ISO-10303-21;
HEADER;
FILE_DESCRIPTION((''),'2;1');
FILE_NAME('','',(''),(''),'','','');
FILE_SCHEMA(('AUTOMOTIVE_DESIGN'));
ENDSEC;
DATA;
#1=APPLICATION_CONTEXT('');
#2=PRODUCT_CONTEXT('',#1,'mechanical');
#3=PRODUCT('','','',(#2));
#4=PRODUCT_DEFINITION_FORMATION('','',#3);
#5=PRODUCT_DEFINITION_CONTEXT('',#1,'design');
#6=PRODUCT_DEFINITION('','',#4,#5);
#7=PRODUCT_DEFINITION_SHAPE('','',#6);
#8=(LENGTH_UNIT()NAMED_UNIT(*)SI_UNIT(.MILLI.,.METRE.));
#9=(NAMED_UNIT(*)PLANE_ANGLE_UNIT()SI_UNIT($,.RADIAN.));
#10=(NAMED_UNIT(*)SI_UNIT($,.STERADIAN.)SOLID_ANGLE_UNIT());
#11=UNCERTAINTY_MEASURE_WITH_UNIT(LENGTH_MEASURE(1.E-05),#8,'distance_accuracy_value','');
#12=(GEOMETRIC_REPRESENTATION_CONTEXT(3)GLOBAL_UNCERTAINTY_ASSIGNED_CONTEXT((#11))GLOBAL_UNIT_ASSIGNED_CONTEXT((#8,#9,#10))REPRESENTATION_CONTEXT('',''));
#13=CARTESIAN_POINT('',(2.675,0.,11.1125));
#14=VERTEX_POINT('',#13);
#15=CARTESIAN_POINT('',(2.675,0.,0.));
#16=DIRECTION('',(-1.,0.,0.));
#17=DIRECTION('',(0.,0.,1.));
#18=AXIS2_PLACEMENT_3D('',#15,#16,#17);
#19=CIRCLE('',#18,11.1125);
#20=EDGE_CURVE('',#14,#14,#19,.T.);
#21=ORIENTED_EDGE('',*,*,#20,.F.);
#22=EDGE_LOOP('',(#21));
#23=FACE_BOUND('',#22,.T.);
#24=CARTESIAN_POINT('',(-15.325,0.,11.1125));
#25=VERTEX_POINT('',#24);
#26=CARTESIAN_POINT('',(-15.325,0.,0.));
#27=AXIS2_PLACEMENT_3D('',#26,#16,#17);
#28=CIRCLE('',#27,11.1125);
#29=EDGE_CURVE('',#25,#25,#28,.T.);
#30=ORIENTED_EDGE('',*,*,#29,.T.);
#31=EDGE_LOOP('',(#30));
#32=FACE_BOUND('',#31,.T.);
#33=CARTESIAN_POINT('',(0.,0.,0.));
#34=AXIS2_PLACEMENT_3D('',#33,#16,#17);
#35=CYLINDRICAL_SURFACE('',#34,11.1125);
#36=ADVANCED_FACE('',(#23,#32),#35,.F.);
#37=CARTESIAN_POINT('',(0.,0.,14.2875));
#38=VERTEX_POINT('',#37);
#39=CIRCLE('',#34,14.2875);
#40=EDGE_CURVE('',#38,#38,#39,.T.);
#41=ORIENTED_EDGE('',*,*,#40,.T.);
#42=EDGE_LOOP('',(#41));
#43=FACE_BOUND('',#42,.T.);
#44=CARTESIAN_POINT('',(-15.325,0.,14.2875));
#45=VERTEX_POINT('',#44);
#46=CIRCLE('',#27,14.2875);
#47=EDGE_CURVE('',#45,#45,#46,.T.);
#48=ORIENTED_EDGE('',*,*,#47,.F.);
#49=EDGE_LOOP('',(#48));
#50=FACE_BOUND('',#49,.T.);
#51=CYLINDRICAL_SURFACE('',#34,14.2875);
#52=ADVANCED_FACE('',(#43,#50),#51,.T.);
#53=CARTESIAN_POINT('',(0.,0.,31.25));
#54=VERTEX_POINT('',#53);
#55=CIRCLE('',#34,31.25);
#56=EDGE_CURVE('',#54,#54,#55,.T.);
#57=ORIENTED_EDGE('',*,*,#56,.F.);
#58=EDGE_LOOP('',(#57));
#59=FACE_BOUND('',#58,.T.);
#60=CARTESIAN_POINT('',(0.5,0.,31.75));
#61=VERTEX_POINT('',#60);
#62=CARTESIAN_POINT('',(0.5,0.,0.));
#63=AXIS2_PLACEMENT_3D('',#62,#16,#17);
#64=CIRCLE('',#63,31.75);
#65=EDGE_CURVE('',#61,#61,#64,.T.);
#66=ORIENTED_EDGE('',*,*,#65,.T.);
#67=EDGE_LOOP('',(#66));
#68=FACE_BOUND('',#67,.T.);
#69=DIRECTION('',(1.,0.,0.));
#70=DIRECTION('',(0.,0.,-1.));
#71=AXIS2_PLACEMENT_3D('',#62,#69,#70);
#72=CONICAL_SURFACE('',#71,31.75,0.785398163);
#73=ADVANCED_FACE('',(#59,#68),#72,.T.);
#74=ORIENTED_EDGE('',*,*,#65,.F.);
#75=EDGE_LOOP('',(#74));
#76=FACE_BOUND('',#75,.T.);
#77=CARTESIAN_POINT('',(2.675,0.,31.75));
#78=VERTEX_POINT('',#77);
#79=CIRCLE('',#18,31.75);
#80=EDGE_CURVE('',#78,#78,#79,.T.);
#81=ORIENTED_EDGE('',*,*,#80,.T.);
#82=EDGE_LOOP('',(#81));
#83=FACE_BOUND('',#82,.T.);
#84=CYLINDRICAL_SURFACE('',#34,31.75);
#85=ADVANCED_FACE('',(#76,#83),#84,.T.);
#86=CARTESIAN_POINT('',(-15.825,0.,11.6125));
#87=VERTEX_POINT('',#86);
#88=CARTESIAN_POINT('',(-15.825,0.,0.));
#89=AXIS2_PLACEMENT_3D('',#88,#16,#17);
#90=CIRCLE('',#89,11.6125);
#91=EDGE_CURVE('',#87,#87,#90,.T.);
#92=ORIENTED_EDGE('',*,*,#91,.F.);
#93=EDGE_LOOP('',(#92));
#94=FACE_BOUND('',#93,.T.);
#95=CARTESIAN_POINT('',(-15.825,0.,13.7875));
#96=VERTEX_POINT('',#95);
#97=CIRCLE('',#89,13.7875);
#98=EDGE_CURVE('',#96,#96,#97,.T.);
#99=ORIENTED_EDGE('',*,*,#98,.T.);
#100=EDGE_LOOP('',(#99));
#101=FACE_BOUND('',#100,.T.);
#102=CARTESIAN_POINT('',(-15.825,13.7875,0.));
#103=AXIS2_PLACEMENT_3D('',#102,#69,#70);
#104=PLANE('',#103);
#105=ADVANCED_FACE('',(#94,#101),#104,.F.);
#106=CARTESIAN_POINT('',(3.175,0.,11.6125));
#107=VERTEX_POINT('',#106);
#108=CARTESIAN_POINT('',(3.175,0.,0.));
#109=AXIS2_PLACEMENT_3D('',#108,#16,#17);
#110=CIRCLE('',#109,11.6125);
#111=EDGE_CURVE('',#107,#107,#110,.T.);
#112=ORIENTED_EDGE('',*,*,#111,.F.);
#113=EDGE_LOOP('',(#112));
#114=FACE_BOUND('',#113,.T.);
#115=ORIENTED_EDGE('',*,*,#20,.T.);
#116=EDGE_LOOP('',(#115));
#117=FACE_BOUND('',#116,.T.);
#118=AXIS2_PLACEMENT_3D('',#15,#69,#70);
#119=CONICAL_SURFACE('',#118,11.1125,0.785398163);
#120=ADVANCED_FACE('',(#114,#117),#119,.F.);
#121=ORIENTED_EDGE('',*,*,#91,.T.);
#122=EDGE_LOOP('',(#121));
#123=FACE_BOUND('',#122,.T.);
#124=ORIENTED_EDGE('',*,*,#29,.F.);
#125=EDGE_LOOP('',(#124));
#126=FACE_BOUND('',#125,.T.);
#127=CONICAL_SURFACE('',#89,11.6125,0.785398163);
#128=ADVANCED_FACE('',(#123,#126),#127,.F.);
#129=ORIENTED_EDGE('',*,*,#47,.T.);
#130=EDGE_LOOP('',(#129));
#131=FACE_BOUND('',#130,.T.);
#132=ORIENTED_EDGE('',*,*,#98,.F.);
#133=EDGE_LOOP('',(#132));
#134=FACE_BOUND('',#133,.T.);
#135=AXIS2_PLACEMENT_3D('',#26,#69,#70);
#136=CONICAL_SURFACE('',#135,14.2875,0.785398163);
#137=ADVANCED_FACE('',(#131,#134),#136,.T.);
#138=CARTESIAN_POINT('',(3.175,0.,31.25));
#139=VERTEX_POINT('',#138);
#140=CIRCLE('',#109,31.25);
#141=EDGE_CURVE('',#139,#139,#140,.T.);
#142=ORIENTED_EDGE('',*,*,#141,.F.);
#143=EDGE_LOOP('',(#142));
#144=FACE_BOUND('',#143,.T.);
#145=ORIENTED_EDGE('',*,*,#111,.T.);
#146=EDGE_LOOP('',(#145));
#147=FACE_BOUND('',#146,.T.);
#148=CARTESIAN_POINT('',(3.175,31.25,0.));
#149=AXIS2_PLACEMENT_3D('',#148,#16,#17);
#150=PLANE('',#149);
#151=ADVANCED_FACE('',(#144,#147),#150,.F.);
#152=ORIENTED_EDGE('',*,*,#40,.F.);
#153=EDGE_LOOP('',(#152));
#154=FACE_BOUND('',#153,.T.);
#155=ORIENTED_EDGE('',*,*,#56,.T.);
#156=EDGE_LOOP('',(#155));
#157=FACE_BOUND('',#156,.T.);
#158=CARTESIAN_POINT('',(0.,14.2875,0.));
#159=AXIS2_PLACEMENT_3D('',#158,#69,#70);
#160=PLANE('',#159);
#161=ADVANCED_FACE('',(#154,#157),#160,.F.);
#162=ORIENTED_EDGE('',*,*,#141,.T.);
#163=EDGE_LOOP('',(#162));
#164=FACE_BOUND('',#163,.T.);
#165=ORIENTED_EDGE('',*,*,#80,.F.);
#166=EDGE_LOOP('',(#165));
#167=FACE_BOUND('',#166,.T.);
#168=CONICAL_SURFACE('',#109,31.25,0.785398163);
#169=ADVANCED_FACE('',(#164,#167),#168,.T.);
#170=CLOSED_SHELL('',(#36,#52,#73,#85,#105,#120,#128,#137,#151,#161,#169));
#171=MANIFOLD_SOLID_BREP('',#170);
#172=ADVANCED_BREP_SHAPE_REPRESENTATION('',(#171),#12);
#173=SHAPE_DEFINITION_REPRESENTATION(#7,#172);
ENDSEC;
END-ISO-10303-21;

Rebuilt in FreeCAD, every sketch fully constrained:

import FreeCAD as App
import Part
import Sketcher

V = App.Vector


def add_polygon(sketch, points):
    """Adds a closed chain of lines whose ends are joined by coincident constraints."""
    first, n = sketch.GeometryCount, len(points)
    for a, b in zip(points, points[1:] + points[:1]):
        sketch.addGeometry(Part.LineSegment(App.Vector(*a, 0), App.Vector(*b, 0)), False)
    for i in range(n):
        sketch.addConstraint(Sketcher.Constraint("Coincident", first + i, 2, first + (i + 1) % n, 1))

doc = App.newDocument("Part")
body = doc.addObject("PartDesign::Body", "Body")

sketch1 = body.newObject("Sketcher::SketchObject", "Sketch")
sketch1.AttachmentSupport = (doc.getObject("XY_Plane"), [""])
sketch1.MapMode = "FlatFace"
add_polygon(sketch1, [(-15.8, 13.8), (-15.8, 11.6), (-15.3, 11.1), (2.7, 11.1), (3.2, 11.6), (3.2, 31.2), (2.7, 31.8), (0.5, 31.8), (0, 31.2), (0, 14.3), (-15.3, 14.3)])
sketch1.addConstraint([
    Sketcher.Constraint("Vertical", 0),
    Sketcher.Constraint("Horizontal", 2),
    Sketcher.Constraint("Vertical", 4),
    Sketcher.Constraint("Horizontal", 6),
    Sketcher.Constraint("Vertical", 8),
    Sketcher.Constraint("Horizontal", 9),
    Sketcher.Constraint("PointOnObject", 7, 2, -2),
    Sketcher.Constraint("Perpendicular", 1, 3),
    Sketcher.Constraint("Perpendicular", 3, 5),
    Sketcher.Constraint("Perpendicular", 5, 7),
    Sketcher.Constraint("Parallel", 7, 10),
    Sketcher.Constraint("Horizontal", 0, 2, 3, 2),
    Sketcher.Constraint("Horizontal", 4, 2, 7, 2),
    Sketcher.Constraint("Vertical", 2, 2, 5, 2),
    Sketcher.Constraint("Vertical", 1, 2, 9, 2),
    Sketcher.Constraint("Equal", 6, 0),
    Sketcher.Constraint("Equal", 1, 3),
    Sketcher.Constraint("DistanceX", 2, 1, 2, 2, 18.0),
    Sketcher.Constraint("DistanceX", 0, 2, 3, 2, 19.0),
    Sketcher.Constraint("DistanceX", 6, 2, 6, 1, 2.175),
    Sketcher.Constraint("DistanceY", -1, 1, 4, 2, 31.25),
    Sketcher.Constraint("DistanceY", 4, 1, 4, 2, 19.6375),
])
revolution = body.newObject("PartDesign::Revolution", "Revolution")
revolution.Profile = sketch1
revolution.ReferenceAxis = (sketch1, ["H_Axis"])
revolution.Angle = 360

doc.recompute()
